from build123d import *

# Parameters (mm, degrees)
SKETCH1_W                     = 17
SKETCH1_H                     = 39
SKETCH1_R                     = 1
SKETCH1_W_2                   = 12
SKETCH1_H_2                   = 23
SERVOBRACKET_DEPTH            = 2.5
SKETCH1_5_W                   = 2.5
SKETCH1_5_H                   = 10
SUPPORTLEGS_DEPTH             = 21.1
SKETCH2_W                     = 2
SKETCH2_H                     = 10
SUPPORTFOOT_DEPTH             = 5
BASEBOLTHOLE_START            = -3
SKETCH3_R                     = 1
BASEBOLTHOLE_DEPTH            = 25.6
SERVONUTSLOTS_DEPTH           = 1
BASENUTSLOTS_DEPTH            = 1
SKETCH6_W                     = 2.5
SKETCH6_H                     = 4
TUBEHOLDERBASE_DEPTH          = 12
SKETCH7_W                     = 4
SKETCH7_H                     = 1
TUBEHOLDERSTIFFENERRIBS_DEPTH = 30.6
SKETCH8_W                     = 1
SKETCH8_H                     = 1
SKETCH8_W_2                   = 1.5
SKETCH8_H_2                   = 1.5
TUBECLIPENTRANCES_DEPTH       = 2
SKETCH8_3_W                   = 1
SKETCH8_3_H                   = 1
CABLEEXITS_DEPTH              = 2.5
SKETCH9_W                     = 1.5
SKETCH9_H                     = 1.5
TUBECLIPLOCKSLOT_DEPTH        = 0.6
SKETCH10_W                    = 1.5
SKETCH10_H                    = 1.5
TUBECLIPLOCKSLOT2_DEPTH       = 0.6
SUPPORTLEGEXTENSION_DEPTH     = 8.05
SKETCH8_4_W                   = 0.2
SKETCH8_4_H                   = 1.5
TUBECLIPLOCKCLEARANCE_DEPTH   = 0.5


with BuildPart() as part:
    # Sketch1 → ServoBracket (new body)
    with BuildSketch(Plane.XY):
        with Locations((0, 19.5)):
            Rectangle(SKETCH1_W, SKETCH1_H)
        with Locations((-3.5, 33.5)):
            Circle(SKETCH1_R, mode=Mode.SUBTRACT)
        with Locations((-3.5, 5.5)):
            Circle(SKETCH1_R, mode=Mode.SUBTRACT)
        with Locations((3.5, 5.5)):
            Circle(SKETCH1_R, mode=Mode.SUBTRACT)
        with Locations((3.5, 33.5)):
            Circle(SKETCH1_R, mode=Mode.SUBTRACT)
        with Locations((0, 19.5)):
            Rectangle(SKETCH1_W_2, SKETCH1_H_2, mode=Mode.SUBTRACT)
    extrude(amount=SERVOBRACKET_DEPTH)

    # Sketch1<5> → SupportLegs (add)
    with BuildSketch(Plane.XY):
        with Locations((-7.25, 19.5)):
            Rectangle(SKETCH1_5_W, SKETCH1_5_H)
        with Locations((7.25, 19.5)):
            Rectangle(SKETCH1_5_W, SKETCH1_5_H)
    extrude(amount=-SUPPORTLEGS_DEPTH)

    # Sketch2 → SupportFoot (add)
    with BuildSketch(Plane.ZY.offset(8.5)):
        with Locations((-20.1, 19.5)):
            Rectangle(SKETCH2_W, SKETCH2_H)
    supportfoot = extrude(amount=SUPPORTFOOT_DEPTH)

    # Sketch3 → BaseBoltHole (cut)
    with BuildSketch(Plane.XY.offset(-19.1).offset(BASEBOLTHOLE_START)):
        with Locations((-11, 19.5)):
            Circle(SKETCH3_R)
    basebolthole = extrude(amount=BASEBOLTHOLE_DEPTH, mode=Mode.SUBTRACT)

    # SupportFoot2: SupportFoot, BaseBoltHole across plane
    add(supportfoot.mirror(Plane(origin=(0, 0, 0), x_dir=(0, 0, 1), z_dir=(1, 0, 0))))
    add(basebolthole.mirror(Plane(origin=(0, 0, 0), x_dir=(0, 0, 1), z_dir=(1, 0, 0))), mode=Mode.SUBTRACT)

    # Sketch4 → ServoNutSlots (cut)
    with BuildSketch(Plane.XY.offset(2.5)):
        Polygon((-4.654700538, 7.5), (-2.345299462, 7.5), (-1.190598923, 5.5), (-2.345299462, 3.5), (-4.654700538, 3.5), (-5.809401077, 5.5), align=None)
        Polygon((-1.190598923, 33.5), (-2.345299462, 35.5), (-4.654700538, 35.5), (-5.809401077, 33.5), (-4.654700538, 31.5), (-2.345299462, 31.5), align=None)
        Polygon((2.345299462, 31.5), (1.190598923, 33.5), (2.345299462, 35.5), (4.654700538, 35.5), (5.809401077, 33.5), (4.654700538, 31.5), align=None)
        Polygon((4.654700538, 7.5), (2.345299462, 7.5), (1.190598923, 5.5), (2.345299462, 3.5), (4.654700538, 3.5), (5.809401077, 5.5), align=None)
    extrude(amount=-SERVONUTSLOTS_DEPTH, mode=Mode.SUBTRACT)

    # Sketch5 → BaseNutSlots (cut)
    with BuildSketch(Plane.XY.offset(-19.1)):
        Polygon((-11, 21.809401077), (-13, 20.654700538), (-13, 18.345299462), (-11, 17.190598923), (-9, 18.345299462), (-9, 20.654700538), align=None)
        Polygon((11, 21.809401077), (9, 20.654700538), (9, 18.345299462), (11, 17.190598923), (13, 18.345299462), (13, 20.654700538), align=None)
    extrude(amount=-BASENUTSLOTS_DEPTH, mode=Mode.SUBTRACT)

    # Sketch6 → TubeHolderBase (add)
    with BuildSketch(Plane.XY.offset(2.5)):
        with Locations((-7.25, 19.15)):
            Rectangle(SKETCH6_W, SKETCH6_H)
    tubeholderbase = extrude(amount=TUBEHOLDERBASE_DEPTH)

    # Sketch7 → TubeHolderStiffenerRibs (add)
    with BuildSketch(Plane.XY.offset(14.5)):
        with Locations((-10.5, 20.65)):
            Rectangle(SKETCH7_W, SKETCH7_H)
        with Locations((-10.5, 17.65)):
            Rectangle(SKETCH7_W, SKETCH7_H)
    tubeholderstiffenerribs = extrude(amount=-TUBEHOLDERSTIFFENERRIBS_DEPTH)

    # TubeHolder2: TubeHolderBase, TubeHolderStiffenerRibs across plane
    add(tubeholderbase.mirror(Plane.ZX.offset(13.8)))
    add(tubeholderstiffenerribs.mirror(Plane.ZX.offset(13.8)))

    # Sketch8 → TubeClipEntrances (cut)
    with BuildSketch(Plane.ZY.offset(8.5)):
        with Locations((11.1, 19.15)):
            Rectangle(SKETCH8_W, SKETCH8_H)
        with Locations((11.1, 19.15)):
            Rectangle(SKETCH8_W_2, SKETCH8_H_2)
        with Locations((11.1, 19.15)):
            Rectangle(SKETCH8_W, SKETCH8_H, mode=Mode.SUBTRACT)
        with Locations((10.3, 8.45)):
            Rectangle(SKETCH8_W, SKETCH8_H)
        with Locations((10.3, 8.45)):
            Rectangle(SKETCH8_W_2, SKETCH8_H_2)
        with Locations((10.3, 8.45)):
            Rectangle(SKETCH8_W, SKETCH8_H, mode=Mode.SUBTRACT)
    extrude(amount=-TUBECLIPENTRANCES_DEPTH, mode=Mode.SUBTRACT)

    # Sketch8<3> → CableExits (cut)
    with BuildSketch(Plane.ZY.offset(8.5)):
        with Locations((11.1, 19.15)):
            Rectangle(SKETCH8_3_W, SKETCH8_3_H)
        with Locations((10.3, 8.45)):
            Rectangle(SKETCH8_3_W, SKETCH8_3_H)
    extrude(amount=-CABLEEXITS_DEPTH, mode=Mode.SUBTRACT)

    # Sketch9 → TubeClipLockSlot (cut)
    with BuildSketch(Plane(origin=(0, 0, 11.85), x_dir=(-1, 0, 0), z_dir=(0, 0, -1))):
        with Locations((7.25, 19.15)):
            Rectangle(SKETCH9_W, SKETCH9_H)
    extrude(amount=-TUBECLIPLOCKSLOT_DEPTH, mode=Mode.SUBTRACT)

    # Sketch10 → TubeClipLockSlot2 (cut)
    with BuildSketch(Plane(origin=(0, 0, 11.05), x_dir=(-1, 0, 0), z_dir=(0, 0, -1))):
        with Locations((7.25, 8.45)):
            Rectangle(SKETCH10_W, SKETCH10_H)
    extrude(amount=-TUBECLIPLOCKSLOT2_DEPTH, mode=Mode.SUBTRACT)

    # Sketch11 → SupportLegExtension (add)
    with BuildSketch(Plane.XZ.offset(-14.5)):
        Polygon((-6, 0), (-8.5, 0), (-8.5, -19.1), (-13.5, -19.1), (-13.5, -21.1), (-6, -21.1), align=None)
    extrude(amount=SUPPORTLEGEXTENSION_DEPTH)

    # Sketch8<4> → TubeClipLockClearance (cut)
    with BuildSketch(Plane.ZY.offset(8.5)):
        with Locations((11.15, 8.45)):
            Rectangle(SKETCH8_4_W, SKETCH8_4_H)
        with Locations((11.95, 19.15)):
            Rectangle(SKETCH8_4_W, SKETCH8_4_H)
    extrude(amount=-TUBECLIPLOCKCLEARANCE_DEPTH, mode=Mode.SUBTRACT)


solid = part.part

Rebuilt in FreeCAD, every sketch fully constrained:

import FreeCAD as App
import Part
import Sketcher
from FreeCAD import Vector
Q = App.Units.Quantity

doc = App.newDocument("Part")
body = doc.addObject("PartDesign::Body", "Body")

sketch1 = body.newObject("Sketcher::SketchObject", "Sketch")
sketch1.AttachmentSupport = (doc.getObject("XY_Plane"), [""])
sketch1.MapMode = "FlatFace"
sketch1.addGeometry(Part.LineSegment(Vector(-8.5, 39, 0), Vector(-8.5, 0, 0)), False)
sketch1.addGeometry(Part.LineSegment(Vector(-8.5, 0, 0), Vector(8.5, 0, 0)), False)
sketch1.addGeometry(Part.LineSegment(Vector(8.5, 0, 0), Vector(8.5, 39, 0)), False)
sketch1.addGeometry(Part.LineSegment(Vector(8.5, 39, 0), Vector(-8.5, 39, 0)), False)
sketch1.addGeometry(Part.Circle(Vector(-3.5, 5.5, 0), Vector(0, 0, 1), 1), False)
sketch1.addGeometry(Part.Circle(Vector(3.5, 5.5, 0), Vector(0, 0, 1), 1), False)
sketch1.addGeometry(Part.Circle(Vector(-3.5, 33.5, 0), Vector(0, 0, 1), 1), False)
sketch1.addGeometry(Part.LineSegment(Vector(6, 8, 0), Vector(-6, 8, 0)), False)
sketch1.addGeometry(Part.LineSegment(Vector(-6, 8, 0), Vector(-6, 31, 0)), False)
sketch1.addGeometry(Part.LineSegment(Vector(-6, 31, 0), Vector(6, 31, 0)), False)
sketch1.addGeometry(Part.LineSegment(Vector(6, 31, 0), Vector(6, 8, 0)), False)
sketch1.addGeometry(Part.Circle(Vector(3.5, 33.5, 0), Vector(0, 0, 1), 1), False)
sketch1.addConstraint(Sketcher.Constraint("Coincident", 0, 2, 1, 1))
sketch1.addConstraint(Sketcher.Constraint("Coincident", 1, 2, 2, 1))
sketch1.addConstraint(Sketcher.Constraint("Coincident", 2, 2, 3, 1))
sketch1.addConstraint(Sketcher.Constraint("Coincident", 3, 2, 0, 1))
sketch1.addConstraint(Sketcher.Constraint("Coincident", 7, 2, 8, 1))
sketch1.addConstraint(Sketcher.Constraint("Coincident", 8, 2, 9, 1))
sketch1.addConstraint(Sketcher.Constraint("Coincident", 9, 2, 10, 1))
sketch1.addConstraint(Sketcher.Constraint("Coincident", 10, 2, 7, 1))
sketch1.addConstraint(Sketcher.Constraint("Vertical", 0))
sketch1.addConstraint(Sketcher.Constraint("Horizontal", 1))
sketch1.addConstraint(Sketcher.Constraint("Vertical", 2))
sketch1.addConstraint(Sketcher.Constraint("Horizontal", 3))
sketch1.addConstraint(Sketcher.Constraint("Horizontal", 7))
sketch1.addConstraint(Sketcher.Constraint("Vertical", 8))
sketch1.addConstraint(Sketcher.Constraint("Horizontal", 9))
sketch1.addConstraint(Sketcher.Constraint("Vertical", 10))
sketch1.addConstraint(Sketcher.Constraint("Equal", 4, 5))
sketch1.addConstraint(Sketcher.Constraint("Equal", 5, 6))
sketch1.addConstraint(Sketcher.Constraint("Equal", 6, 11))
sketch1.addConstraint(Sketcher.Constraint("Symmetric", 0, 2, 1, 2, -1, 1))
sketch1.addConstraint(Sketcher.Constraint("Symmetric", 4, 3, 5, 3, -2))
sketch1.addConstraint(Sketcher.Constraint("Symmetric", 6, 3, 11, 3, -2))
sketch1.addConstraint(Sketcher.Constraint("Vertical", 4, 3, 6, 3))
sketch1.addConstraint(Sketcher.Constraint("Diameter", 4, Q("2 mm")))
sketch1.addConstraint(Sketcher.Constraint("DistanceX", 1, 1, 1, 2, Q("17 mm")))
sketch1.addConstraint(Sketcher.Constraint("DistanceX", 7, 2, 7, 1, Q("12 mm")))
sketch1.addConstraint(Sketcher.Constraint("DistanceY", 0, 2, 0, 1, Q("39 mm")))
sketch1.addConstraint(Sketcher.Constraint("DistanceY", 8, 1, 8, 2, Q("23 mm")))
sketch1.addConstraint(Sketcher.Constraint("DistanceX", 7, 2, -1, 1, Q("6 mm")))
sketch1.addConstraint(Sketcher.Constraint("DistanceY", -1, 1, 7, 2, Q("8 mm")))
sketch1.addConstraint(Sketcher.Constraint("DistanceX", 4, 3, 5, 3, Q("7 mm")))
sketch1.addConstraint(Sketcher.Constraint("DistanceY", 4, 3, 6, 3, Q("28 mm")))
sketch1.addConstraint(Sketcher.Constraint("DistanceY", -1, 1, 4, 3, Q("5.5 mm")))
pad1 = body.newObject("PartDesign::Pad", "Pad")
pad1.Profile = sketch1
pad1.Length = 2.5

sketch2 = body.newObject("Sketcher::SketchObject", "Sketch001")
sketch2.AttachmentSupport = (doc.getObject("XY_Plane"), [""])
sketch2.MapMode = "FlatFace"
sketch2.addGeometry(Part.LineSegment(Vector(-8.5, 24.5, 0), Vector(-8.5, 14.5, 0)), False)
sketch2.addGeometry(Part.LineSegment(Vector(-8.5, 14.5, 0), Vector(-6, 14.5, 0)), False)
sketch2.addGeometry(Part.LineSegment(Vector(-6, 14.5, 0), Vector(-6, 24.5, 0)), False)
sketch2.addGeometry(Part.LineSegment(Vector(-6, 24.5, 0), Vector(-8.5, 24.5, 0)), False)
sketch2.addGeometry(Part.LineSegment(Vector(6, 24.5, 0), Vector(6, 14.5, 0)), False)
sketch2.addGeometry(Part.LineSegment(Vector(6, 14.5, 0), Vector(8.5, 14.5, 0)), False)
sketch2.addGeometry(Part.LineSegment(Vector(8.5, 14.5, 0), Vector(8.5, 24.5, 0)), False)
sketch2.addGeometry(Part.LineSegment(Vector(8.5, 24.5, 0), Vector(6, 24.5, 0)), False)
sketch2.addConstraint(Sketcher.Constraint("Coincident", 0, 2, 1, 1))
sketch2.addConstraint(Sketcher.Constraint("Coincident", 1, 2, 2, 1))
sketch2.addConstraint(Sketcher.Constraint("Coincident", 2, 2, 3, 1))
sketch2.addConstraint(Sketcher.Constraint("Coincident", 3, 2, 0, 1))
sketch2.addConstraint(Sketcher.Constraint("Coincident", 4, 2, 5, 1))
sketch2.addConstraint(Sketcher.Constraint("Coincident", 5, 2, 6, 1))
sketch2.addConstraint(Sketcher.Constraint("Coincident", 6, 2, 7, 1))
sketch2.addConstraint(Sketcher.Constraint("Coincident", 7, 2, 4, 1))
sketch2.addConstraint(Sketcher.Constraint("Vertical", 0))
sketch2.addConstraint(Sketcher.Constraint("Horizontal", 1))
sketch2.addConstraint(Sketcher.Constraint("Vertical", 2))
sketch2.addConstraint(Sketcher.Constraint("Horizontal", 3))
sketch2.addConstraint(Sketcher.Constraint("Vertical", 4))
sketch2.addConstraint(Sketcher.Constraint("Horizontal", 5))
sketch2.addConstraint(Sketcher.Constraint("Vertical", 6))
sketch2.addConstraint(Sketcher.Constraint("Horizontal", 7))
sketch2.addConstraint(Sketcher.Constraint("Symmetric", 1, 2, 4, 2, -2))
sketch2.addConstraint(Sketcher.Constraint("Symmetric", 3, 2, 6, 2, -2))
sketch2.addConstraint(Sketcher.Constraint("DistanceY", 0, 2, 0, 1, Q("10 mm")))
sketch2.addConstraint(Sketcher.Constraint("DistanceX", 1, 1, 1, 2, Q("2.5 mm")))
sketch2.addConstraint(Sketcher.Constraint("DistanceX", 1, 2, -1, 1, Q("6 mm")))
sketch2.addConstraint(Sketcher.Constraint("DistanceY", -1, 1, 0, 2, Q("14.5 mm")))
pad2 = body.newObject("PartDesign::Pad", "Pad001")
pad2.Profile = sketch2
pad2.Length = 21.1
pad2.Reversed = True

sketch3 = body.newObject("Sketcher::SketchObject", "Sketch002")
sketch3.AttachmentSupport = (doc.getObject("YZ_Plane"), [""])
sketch3.MapMode = "FlatFace"
sketch3.AttachmentOffset = App.Placement(Vector(0, 0, -8.5), App.Rotation())
sketch3.addGeometry(Part.LineSegment(Vector(24.5, -21.1, 0), Vector(14.5, -21.1, 0)), False)
sketch3.addGeometry(Part.LineSegment(Vector(14.5, -21.1, 0), Vector(14.5, -19.1, 0)), False)
sketch3.addGeometry(Part.LineSegment(Vector(14.5, -19.1, 0), Vector(24.5, -19.1, 0)), False)
sketch3.addGeometry(Part.LineSegment(Vector(24.5, -19.1, 0), Vector(24.5, -21.1, 0)), False)
sketch3.addConstraint(Sketcher.Constraint("Coincident", 0, 2, 1, 1))
sketch3.addConstraint(Sketcher.Constraint("Coincident", 1, 2, 2, 1))
sketch3.addConstraint(Sketcher.Constraint("Coincident", 2, 2, 3, 1))
sketch3.addConstraint(Sketcher.Constraint("Coincident", 3, 2, 0, 1))
sketch3.addConstraint(Sketcher.Constraint("Horizontal", 0))
sketch3.addConstraint(Sketcher.Constraint("Vertical", 1))
sketch3.addConstraint(Sketcher.Constraint("Horizontal", 2))
sketch3.addConstraint(Sketcher.Constraint("Vertical", 3))
sketch3.addConstraint(Sketcher.Constraint("DistanceX", 0, 2, 0, 1, Q("10 mm")))
sketch3.addConstraint(Sketcher.Constraint("DistanceY", 1, 1, 1, 2, Q("2 mm")))
sketch3.addConstraint(Sketcher.Constraint("DistanceX", -1, 1, 0, 2, Q("14.5 mm")))
sketch3.addConstraint(Sketcher.Constraint("DistanceY", 0, 2, -1, 1, Q("21.1 mm")))
pad3 = body.newObject("PartDesign::Pad", "Pad002")
pad3.Profile = sketch3
pad3.Length = 5
pad3.Reversed = True

sketch4 = body.newObject("Sketcher::SketchObject", "Sketch003")
sketch4.AttachmentSupport = (doc.getObject("XY_Plane"), [""])
sketch4.MapMode = "FlatFace"
sketch4.AttachmentOffset = App.Placement(Vector(0, 0, -22.1), App.Rotation())
sketch4.addGeometry(Part.Circle(Vector(-11, 19.5, 0), Vector(0, 0, 1), 1), False)
sketch4.addConstraint(Sketcher.Constraint("Diameter", 0, Q("2 mm")))
sketch4.addConstraint(Sketcher.Constraint("DistanceX", 0, 3, -1, 1, Q("11 mm")))
sketch4.addConstraint(Sketcher.Constraint("DistanceY", -1, 1, 0, 3, Q("19.5 mm")))
pocket1 = body.newObject("PartDesign::Pocket", "Pocket")
pocket1.Profile = sketch4
pocket1.Length = 25.6
pocket1.Reversed = True
doc.recompute()

mirrored = body.newObject("PartDesign::Mirrored", "Mirrored")
mirrored.Originals = [pad3, pocket1]
mirrored.MirrorPlane = (doc.getObject("YZ_Plane"), [""])
body.Tip = mirrored

sketch5 = body.newObject("Sketcher::SketchObject", "Sketch004")
sketch5.AttachmentSupport = (doc.getObject("XY_Plane"), [""])
sketch5.MapMode = "FlatFace"
sketch5.AttachmentOffset = App.Placement(Vector(0, 0, 2.5), App.Rotation())
sketch5.addGeometry(Part.LineSegment(Vector(-2.3, 7.5, 0), Vector(-4.7, 7.5, 0)), False)
sketch5.addGeometry(Part.LineSegment(Vector(-4.7, 7.5, 0), Vector(-5.8, 5.5, 0)), False)
sketch5.addGeometry(Part.LineSegment(Vector(-5.8, 5.5, 0), Vector(-4.7, 3.5, 0)), False)
sketch5.addGeometry(Part.LineSegment(Vector(-4.7, 3.5, 0), Vector(-2.3, 3.5, 0)), False)
sketch5.addGeometry(Part.LineSegment(Vector(-2.3, 3.5, 0), Vector(-1.2, 5.5, 0)), False)
sketch5.addGeometry(Part.LineSegment(Vector(-1.2, 5.5, 0), Vector(-2.3, 7.5, 0)), False)
sketch5.addGeometry(Part.LineSegment(Vector(-1.2, 33.5, 0), Vector(-2.3, 35.5, 0)), False)
sketch5.addGeometry(Part.LineSegment(Vector(-2.3, 35.5, 0), Vector(-4.7, 35.5, 0)), False)
sketch5.addGeometry(Part.LineSegment(Vector(-4.7, 35.5, 0), Vector(-5.8, 33.5, 0)), False)
sketch5.addGeometry(Part.LineSegment(Vector(-5.8, 33.5, 0), Vector(-4.7, 31.5, 0)), False)
sketch5.addGeometry(Part.LineSegment(Vector(-4.7, 31.5, 0), Vector(-2.3, 31.5, 0)), False)
sketch5.addGeometry(Part.LineSegment(Vector(-2.3, 31.5, 0), Vector(-1.2, 33.5, 0)), False)
sketch5.addGeometry(Part.LineSegment(Vector(1.2, 33.5, 0), Vector(2.3, 31.5, 0)), False)
sketch5.addGeometry(Part.LineSegment(Vector(2.3, 31.5, 0), Vector(4.7, 31.5, 0)), False)
sketch5.addGeometry(Part.LineSegment(Vector(4.7, 31.5, 0), Vector(5.8, 33.5, 0)), False)
sketch5.addGeometry(Part.LineSegment(Vector(5.8, 33.5, 0), Vector(4.7, 35.5, 0)), False)
sketch5.addGeometry(Part.LineSegment(Vector(4.7, 35.5, 0), Vector(2.3, 35.5, 0)), False)
sketch5.addGeometry(Part.LineSegment(Vector(2.3, 35.5, 0), Vector(1.2, 33.5, 0)), False)
sketch5.addGeometry(Part.LineSegment(Vector(4.7, 7.5, 0), Vector(2.3, 7.5, 0)), False)
sketch5.addGeometry(Part.LineSegment(Vector(2.3, 7.5, 0), Vector(1.2, 5.5, 0)), False)
sketch5.addGeometry(Part.LineSegment(Vector(1.2, 5.5, 0), Vector(2.3, 3.5, 0)), False)
sketch5.addGeometry(Part.LineSegment(Vector(2.3, 3.5, 0), Vector(4.7, 3.5, 0)), False)
sketch5.addGeometry(Part.LineSegment(Vector(4.7, 3.5, 0), Vector(5.8, 5.5, 0)), False)
sketch5.addGeometry(Part.LineSegment(Vector(5.8, 5.5, 0), Vector(4.7, 7.5, 0)), False)
sketch5.addConstraint(Sketcher.Constraint("Coincident", 0, 2, 1, 1))
sketch5.addConstraint(Sketcher.Constraint("Coincident", 1, 2, 2, 1))
sketch5.addConstraint(Sketcher.Constraint("Coincident", 2, 2, 3, 1))
sketch5.addConstraint(Sketcher.Constraint("Coincident", 3, 2, 4, 1))
sketch5.addConstraint(Sketcher.Constraint("Coincident", 4, 2, 5, 1))
sketch5.addConstraint(Sketcher.Constraint("Coincident", 5, 2, 0, 1))
sketch5.addConstraint(Sketcher.Constraint("Coincident", 6, 2, 7, 1))
sketch5.addConstraint(Sketcher.Constraint("Coincident", 7, 2, 8, 1))
sketch5.addConstraint(Sketcher.Constraint("Coincident", 8, 2, 9, 1))
sketch5.addConstraint(Sketcher.Constraint("Coincident", 9, 2, 10, 1))
sketch5.addConstraint(Sketcher.Constraint("Coincident", 10, 2, 11, 1))
sketch5.addConstraint(Sketcher.Constraint("Coincident", 11, 2, 6, 1))
sketch5.addConstraint(Sketcher.Constraint("Coincident", 12, 2, 13, 1))
sketch5.addConstraint(Sketcher.Constraint("Coincident", 13, 2, 14, 1))
sketch5.addConstraint(Sketcher.Constraint("Coincident", 14, 2, 15, 1))
sketch5.addConstraint(Sketcher.Constraint("Coincident", 15, 2, 16, 1))
sketch5.addConstraint(Sketcher.Constraint("Coincident", 16, 2, 17, 1))
sketch5.addConstraint(Sketcher.Constraint("Coincident", 17, 2, 12, 1))
sketch5.addConstraint(Sketcher.Constraint("Coincident", 18, 2, 19, 1))
sketch5.addConstraint(Sketcher.Constraint("Coincident", 19, 2, 20, 1))
sketch5.addConstraint(Sketcher.Constraint("Coincident", 20, 2, 21, 1))
sketch5.addConstraint(Sketcher.Constraint("Coincident", 21, 2, 22, 1))
sketch5.addConstraint(Sketcher.Constraint("Coincident", 22, 2, 23, 1))
sketch5.addConstraint(Sketcher.Constraint("Coincident", 23, 2, 18, 1))
sketch5.addConstraint(Sketcher.Constraint("Horizontal", 0))
sketch5.addConstraint(Sketcher.Constraint("Horizontal", 3))
sketch5.addConstraint(Sketcher.Constraint("Horizontal", 7))
sketch5.addConstraint(Sketcher.Constraint("Horizontal", 10))
sketch5.addConstraint(Sketcher.Constraint("Horizontal", 13))
sketch5.addConstraint(Sketcher.Constraint("Horizontal", 16))
sketch5.addConstraint(Sketcher.Constraint("Horizontal", 18))
sketch5.addConstraint(Sketcher.Constraint("Horizontal", 21))
sketch5.addConstraint(Sketcher.Constraint("Symmetric", 10, 2, 12, 2, -2))
sketch5.addConstraint(Sketcher.Constraint("Symmetric", 8, 2, 14, 2, -2))
sketch5.addConstraint(Sketcher.Constraint("Symmetric", 7, 2, 15, 2, -2))
sketch5.addConstraint(Sketcher.Constraint("Symmetric", 11, 2, 17, 2, -2))
sketch5.addConstraint(Sketcher.Constraint("Symmetric", 5, 2, 18, 2, -2))
sketch5.addConstraint(Sketcher.Constraint("Symmetric", 4, 2, 19, 2, -2))
sketch5.addConstraint(Sketcher.Constraint("Symmetric", 3, 2, 20, 2, -2))
sketch5.addConstraint(Sketcher.Constraint("Symmetric", 1, 2, 22, 2, -2))
sketch5.addConstraint(Sketcher.Constraint("Parallel", 1, 4))
sketch5.addConstraint(Sketcher.Constraint("Parallel", 2, 5))
sketch5.addConstraint(Sketcher.Constraint("Parallel", 5, 6))
sketch5.addConstraint(Sketcher.Constraint("Parallel", 4, 8))
sketch5.addConstraint(Sketcher.Constraint("Parallel", 6, 9))
sketch5.addConstraint(Sketcher.Constraint("Parallel", 8, 11))
sketch5.addConstraint(Sketcher.Constraint("Parallel", 9, 12))
sketch5.addConstraint(Sketcher.Constraint("Parallel", 11, 14))
sketch5.addConstraint(Sketcher.Constraint("Parallel", 14, 17))
sketch5.addConstraint(Sketcher.Constraint("Parallel", 19, 22))
sketch5.addConstraint(Sketcher.Constraint("Parallel", 20, 23))
sketch5.addConstraint(Sketcher.Constraint("Horizontal", 1, 2, 4, 2))
sketch5.addConstraint(Sketcher.Constraint("Horizontal", 8, 2, 11, 2))
sketch5.addConstraint(Sketcher.Constraint("Vertical", 0, 2, 2, 2))
sketch5.addConstraint(Sketcher.Constraint("Vertical", 5, 2, 6, 2))
sketch5.addConstraint(Sketcher.Constraint("Vertical", 2, 2, 7, 2))
sketch5.addConstraint(Sketcher.Constraint("Vertical", 1, 2, 8, 2))
sketch5.addConstraint(Sketcher.Constraint("Vertical", 7, 2, 9, 2))
sketch5.addConstraint(Sketcher.Constraint("Angle", 1, Q("-120 deg")))
sketch5.addConstraint(Sketcher.Constraint("DistanceY", 1, 2, 0, 2, Q("2 mm")))
sketch5.addConstraint(Sketcher.Constraint("DistanceY", 5, 2, 6, 2, Q("28 mm")))
sketch5.addConstraint(Sketcher.Constraint("DistanceX", 9, 2, 12, 2, Q("7 mm")))
sketch5.addConstraint(Sketcher.Constraint("DistanceY", -1, 1, 0, 2, Q("7.5 mm")))
sketch5.addConstraint(Sketcher.Constraint("DistanceX", 0, 2, 0, 1, Q("2.309401 mm")))
pocket2 = body.newObject("PartDesign::Pocket", "Pocket001")
pocket2.Profile = sketch5
pocket2.Length = 1

sketch6 = body.newObject("Sketcher::SketchObject", "Sketch005")
sketch6.AttachmentSupport = (doc.getObject("XY_Plane"), [""])
sketch6.MapMode = "FlatFace"
sketch6.AttachmentOffset = App.Placement(Vector(0, 0, -19.1), App.Rotation())
sketch6.addGeometry(Part.LineSegment(Vector(-11, 21.8, 0), Vector(-13, 20.7, 0)), False)
sketch6.addGeometry(Part.LineSegment(Vector(-13, 20.7, 0), Vector(-13, 18.3, 0)), False)
sketch6.addGeometry(Part.LineSegment(Vector(-13, 18.3, 0), Vector(-11, 17.2, 0)), False)
sketch6.addGeometry(Part.LineSegment(Vector(-11, 17.2, 0), Vector(-9, 18.3, 0)), False)
sketch6.addGeometry(Part.LineSegment(Vector(-9, 18.3, 0), Vector(-9, 20.7, 0)), False)
sketch6.addGeometry(Part.LineSegment(Vector(-9, 20.7, 0), Vector(-11, 21.8, 0)), False)
sketch6.addGeometry(Part.LineSegment(Vector(11, 21.8, 0), Vector(9, 20.7, 0)), False)
sketch6.addGeometry(Part.LineSegment(Vector(9, 20.7, 0), Vector(9, 18.3, 0)), False)
sketch6.addGeometry(Part.LineSegment(Vector(9, 18.3, 0), Vector(11, 17.2, 0)), False)
sketch6.addGeometry(Part.LineSegment(Vector(11, 17.2, 0), Vector(13, 18.3, 0)), False)
sketch6.addGeometry(Part.LineSegment(Vector(13, 18.3, 0), Vector(13, 20.7, 0)), False)
sketch6.addGeometry(Part.LineSegment(Vector(13, 20.7, 0), Vector(11, 21.8, 0)), False)
sketch6.addConstraint(Sketcher.Constraint("Coincident", 0, 2, 1, 1))
sketch6.addConstraint(Sketcher.Constraint("Coincident", 1, 2, 2, 1))
sketch6.addConstraint(Sketcher.Constraint("Coincident", 2, 2, 3, 1))
sketch6.addConstraint(Sketcher.Constraint("Coincident", 3, 2, 4, 1))
sketch6.addConstraint(Sketcher.Constraint("Coincident", 4, 2, 5, 1))
sketch6.addConstraint(Sketcher.Constraint("Coincident", 5, 2, 0, 1))
sketch6.addConstraint(Sketcher.Constraint("Coincident", 6, 2, 7, 1))
sketch6.addConstraint(Sketcher.Constraint("Coincident", 7, 2, 8, 1))
sketch6.addConstraint(Sketcher.Constraint("Coincident", 8, 2, 9, 1))
sketch6.addConstraint(Sketcher.Constraint("Coincident", 9, 2, 10, 1))
sketch6.addConstraint(Sketcher.Constraint("Coincident", 10, 2, 11, 1))
sketch6.addConstraint(Sketcher.Constraint("Coincident", 11, 2, 6, 1))
sketch6.addConstraint(Sketcher.Constraint("Vertical", 1))
sketch6.addConstraint(Sketcher.Constraint("Vertical", 4))
sketch6.addConstraint(Sketcher.Constraint("Vertical", 7))
sketch6.addConstraint(Sketcher.Constraint("Vertical", 10))
sketch6.addConstraint(Sketcher.Constraint("Symmetric", 4, 2, 6, 2, -2))
sketch6.addConstraint(Sketcher.Constraint("Symmetric", 2, 2, 8, 2, -2))
sketch6.addConstraint(Sketcher.Constraint("Symmetric", 1, 2, 9, 2, -2))
sketch6.addConstraint(Sketcher.Constraint("Symmetric", 5, 2, 11, 2, -2))
sketch6.addConstraint(Sketcher.Constraint("Parallel", 0, 3))
sketch6.addConstraint(Sketcher.Constraint("Parallel", 2, 5))
sketch6.addConstraint(Sketcher.Constraint("Parallel", 3, 6))
sketch6.addConstraint(Sketcher.Constraint("Parallel", 5, 8))
sketch6.addConstraint(Sketcher.Constraint("Parallel", 8, 11))
sketch6.addConstraint(Sketcher.Constraint("Horizontal", 1, 2, 3, 2))
sketch6.addConstraint(Sketcher.Constraint("Horizontal", 0, 2, 4, 2))
sketch6.addConstraint(Sketcher.Constraint("Angle", 0, Q("-150 deg")))
sketch6.addConstraint(Sketcher.Constraint("DistanceX", 0, 2, -1, 1, Q("13 mm")))
sketch6.addConstraint(Sketcher.Constraint("DistanceX", 2, 2, -1, 1, Q("11 mm")))
sketch6.addConstraint(Sketcher.Constraint("DistanceY", 1, 2, 1, 1, Q("2.309401 mm")))
sketch6.addConstraint(Sketcher.Constraint("DistanceY", -1, 1, 0, 2, Q("20.654701 mm")))
pocket3 = body.newObject("PartDesign::Pocket", "Pocket002")
pocket3.Profile = sketch6
pocket3.Length = 1

sketch7 = body.newObject("Sketcher::SketchObject", "Sketch006")
sketch7.AttachmentSupport = (doc.getObject("XY_Plane"), [""])
sketch7.MapMode = "FlatFace"
sketch7.AttachmentOffset = App.Placement(Vector(0, 0, 2.5), App.Rotation())
sketch7.addGeometry(Part.LineSegment(Vector(-8.5, 21.1, 0), Vector(-8.5, 17.1, 0)), False)
sketch7.addGeometry(Part.LineSegment(Vector(-8.5, 17.1, 0), Vector(-6, 17.1, 0)), False)
sketch7.addGeometry(Part.LineSegment(Vector(-6, 17.1, 0), Vector(-6, 21.1, 0)), False)
sketch7.addGeometry(Part.LineSegment(Vector(-6, 21.1, 0), Vector(-8.5, 21.1, 0)), False)
sketch7.addConstraint(Sketcher.Constraint("Coincident", 0, 2, 1, 1))
sketch7.addConstraint(Sketcher.Constraint("Coincident", 1, 2, 2, 1))
sketch7.addConstraint(Sketcher.Constraint("Coincident", 2, 2, 3, 1))
sketch7.addConstraint(Sketcher.Constraint("Coincident", 3, 2, 0, 1))
sketch7.addConstraint(Sketcher.Constraint("Vertical", 0))
sketch7.addConstraint(Sketcher.Constraint("Horizontal", 1))
sketch7.addConstraint(Sketcher.Constraint("Vertical", 2))
sketch7.addConstraint(Sketcher.Constraint("Horizontal", 3))
sketch7.addConstraint(Sketcher.Constraint("DistanceY", 0, 2, 0, 1, Q("4 mm")))
sketch7.addConstraint(Sketcher.Constraint("DistanceX", 1, 1, 1, 2, Q("2.5 mm")))
sketch7.addConstraint(Sketcher.Constraint("DistanceX", 1, 2, -1, 1, Q("6 mm")))
sketch7.addConstraint(Sketcher.Constraint("DistanceY", -1, 1, 0, 2, Q("17.15 mm")))
pad4 = body.newObject("PartDesign::Pad", "Pad003")
pad4.Profile = sketch7
pad4.Length = 12

sketch8 = body.newObject("Sketcher::SketchObject", "Sketch007")
sketch8.AttachmentSupport = (doc.getObject("XY_Plane"), [""])
sketch8.MapMode = "FlatFace"
sketch8.AttachmentOffset = App.Placement(Vector(0, 0, 14.5), App.Rotation())
sketch8.addGeometry(Part.LineSegment(Vector(-12.5, 21.1, 0), Vector(-12.5, 20.1, 0)), False)
sketch8.addGeometry(Part.LineSegment(Vector(-12.5, 20.1, 0), Vector(-8.5, 20.1, 0)), False)
sketch8.addGeometry(Part.LineSegment(Vector(-8.5, 20.1, 0), Vector(-8.5, 21.1, 0)), False)
sketch8.addGeometry(Part.LineSegment(Vector(-8.5, 21.1, 0), Vector(-12.5, 21.1, 0)), False)
sketch8.addGeometry(Part.LineSegment(Vector(-12.5, 18.1, 0), Vector(-12.5, 17.1, 0)), False)
sketch8.addGeometry(Part.LineSegment(Vector(-12.5, 17.1, 0), Vector(-8.5, 17.1, 0)), False)
sketch8.addGeometry(Part.LineSegment(Vector(-8.5, 17.1, 0), Vector(-8.5, 18.1, 0)), False)
sketch8.addGeometry(Part.LineSegment(Vector(-8.5, 18.1, 0), Vector(-12.5, 18.1, 0)), False)
sketch8.addConstraint(Sketcher.Constraint("Coincident", 0, 2, 1, 1))
sketch8.addConstraint(Sketcher.Constraint("Coincident", 1, 2, 2, 1))
sketch8.addConstraint(Sketcher.Constraint("Coincident", 2, 2, 3, 1))
sketch8.addConstraint(Sketcher.Constraint("Coincident", 3, 2, 0, 1))
sketch8.addConstraint(Sketcher.Constraint("Coincident", 4, 2, 5, 1))
sketch8.addConstraint(Sketcher.Constraint("Coincident", 5, 2, 6, 1))
sketch8.addConstraint(Sketcher.Constraint("Coincident", 6, 2, 7, 1))
sketch8.addConstraint(Sketcher.Constraint("Coincident", 7, 2, 4, 1))
sketch8.addConstraint(Sketcher.Constraint("Vertical", 0))
sketch8.addConstraint(Sketcher.Constraint("Horizontal", 1))
sketch8.addConstraint(Sketcher.Constraint("Vertical", 2))
sketch8.addConstraint(Sketcher.Constraint("Horizontal", 3))
sketch8.addConstraint(Sketcher.Constraint("Vertical", 4))
sketch8.addConstraint(Sketcher.Constraint("Horizontal", 5))
sketch8.addConstraint(Sketcher.Constraint("Vertical", 6))
sketch8.addConstraint(Sketcher.Constraint("Horizontal", 7))
sketch8.addConstraint(Sketcher.Constraint("Vertical", 3, 2, 4, 2))
sketch8.addConstraint(Sketcher.Constraint("Vertical", 2, 2, 5, 2))
sketch8.addConstraint(Sketcher.Constraint("Equal", 2, 4))
sketch8.addConstraint(Sketcher.Constraint("DistanceX", 1, 1, 1, 2, Q("4 mm")))
sketch8.addConstraint(Sketcher.Constraint("DistanceY", 0, 2, 0, 1, Q("1 mm")))
sketch8.addConstraint(Sketcher.Constraint("DistanceY", 4, 2, 0, 2, Q("3 mm")))
sketch8.addConstraint(Sketcher.Constraint("DistanceX", 0, 2, -1, 1, Q("12.5 mm")))
sketch8.addConstraint(Sketcher.Constraint("DistanceY", -1, 1, 0, 2, Q("20.15 mm")))
pad5 = body.newObject("PartDesign::Pad", "Pad004")
pad5.Profile = sketch8
pad5.Length = 30.6
pad5.Reversed = True
doc.recompute()

datumplane = body.newObject("PartDesign::Plane", "DatumPlane")
datumplane.AttachmentSupport = (doc.getObject("XZ_Plane"), [""])
datumplane.MapMode = "FlatFace"
datumplane.AttachmentOffset = App.Placement(Vector(0, 0, -13.8), App.Rotation())
mirrored2 = body.newObject("PartDesign::Mirrored", "Mirrored001")
mirrored2.Originals = [pad4, pad5]
mirrored2.MirrorPlane = (datumplane, [""])
body.Tip = mirrored2

sketch9 = body.newObject("Sketcher::SketchObject", "Sketch008")
sketch9.AttachmentSupport = (doc.getObject("YZ_Plane"), [""])
sketch9.MapMode = "FlatFace"
sketch9.AttachmentOffset = App.Placement(Vector(0, 0, -8.5), App.Rotation())
sketch9.addGeometry(Part.LineSegment(Vector(19.9, 10.3, 0), Vector(18.4, 10.3, 0)), False)
sketch9.addGeometry(Part.LineSegment(Vector(18.4, 10.3, 0), Vector(18.4, 11.8, 0)), False)
sketch9.addGeometry(Part.LineSegment(Vector(18.4, 11.8, 0), Vector(19.9, 11.8, 0)), False)
sketch9.addGeometry(Part.LineSegment(Vector(19.9, 11.8, 0), Vector(19.9, 10.3, 0)), False)
sketch9.addGeometry(Part.LineSegment(Vector(18.6, 11.6, 0), Vector(18.6, 10.6, 0)), False)
sketch9.addGeometry(Part.LineSegment(Vector(18.6, 10.6, 0), Vector(19.6, 10.6, 0)), False)
sketch9.addGeometry(Part.LineSegment(Vector(19.6, 10.6, 0), Vector(19.6, 11.6, 0)), False)
sketch9.addGeometry(Part.LineSegment(Vector(19.6, 11.6, 0), Vector(18.6, 11.6, 0)), False)
sketch9.addGeometry(Part.LineSegment(Vector(9.2, 9.6, 0), Vector(7.7, 9.6, 0)), False)
sketch9.addGeometry(Part.LineSegment(Vector(7.7, 9.6, 0), Vector(7.7, 11.1, 0)), False)
sketch9.addGeometry(Part.LineSegment(Vector(7.7, 11.1, 0), Vector(9.2, 11.1, 0)), False)
sketch9.addGeometry(Part.LineSegment(Vector(9.2, 11.1, 0), Vector(9.2, 9.6, 0)), False)
sketch9.addGeometry(Part.LineSegment(Vector(8, 10.8, 0), Vector(8, 9.8, 0)), False)
sketch9.addGeometry(Part.LineSegment(Vector(8, 9.8, 0), Vector(8.9, 9.8, 0)), False)
sketch9.addGeometry(Part.LineSegment(Vector(8.9, 9.8, 0), Vector(8.9, 10.8, 0)), False)
sketch9.addGeometry(Part.LineSegment(Vector(8.9, 10.8, 0), Vector(8, 10.8, 0)), False)
sketch9.addConstraint(Sketcher.Constraint("Coincident", 0, 2, 1, 1))
sketch9.addConstraint(Sketcher.Constraint("Coincident", 1, 2, 2, 1))
sketch9.addConstraint(Sketcher.Constraint("Coincident", 2, 2, 3, 1))
sketch9.addConstraint(Sketcher.Constraint("Coincident", 3, 2, 0, 1))
sketch9.addConstraint(Sketcher.Constraint("Coincident", 4, 2, 5, 1))
sketch9.addConstraint(Sketcher.Constraint("Coincident", 5, 2, 6, 1))
sketch9.addConstraint(Sketcher.Constraint("Coincident", 6, 2, 7, 1))
sketch9.addConstraint(Sketcher.Constraint("Coincident", 7, 2, 4, 1))
sketch9.addConstraint(Sketcher.Constraint("Coincident", 8, 2, 9, 1))
sketch9.addConstraint(Sketcher.Constraint("Coincident", 9, 2, 10, 1))
sketch9.addConstraint(Sketcher.Constraint("Coincident", 10, 2, 11, 1))
sketch9.addConstraint(Sketcher.Constraint("Coincident", 11, 2, 8, 1))
sketch9.addConstraint(Sketcher.Constraint("Coincident", 12, 2, 13, 1))
sketch9.addConstraint(Sketcher.Constraint("Coincident", 13, 2, 14, 1))
sketch9.addConstraint(Sketcher.Constraint("Coincident", 14, 2, 15, 1))
sketch9.addConstraint(Sketcher.Constraint("Coincident", 15, 2, 12, 1))
sketch9.addConstraint(Sketcher.Constraint("Horizontal", 0))
sketch9.addConstraint(Sketcher.Constraint("Vertical", 1))
sketch9.addConstraint(Sketcher.Constraint("Horizontal", 2))
sketch9.addConstraint(Sketcher.Constraint("Vertical", 3))
sketch9.addConstraint(Sketcher.Constraint("Vertical", 4))
sketch9.addConstraint(Sketcher.Constraint("Horizontal", 5))
sketch9.addConstraint(Sketcher.Constraint("Vertical", 6))
sketch9.addConstraint(Sketcher.Constraint("Horizontal", 7))
sketch9.addConstraint(Sketcher.Constraint("Horizontal", 8))
sketch9.addConstraint(Sketcher.Constraint("Vertical", 9))
sketch9.addConstraint(Sketcher.Constraint("Horizontal", 10))
sketch9.addConstraint(Sketcher.Constraint("Vertical", 11))
sketch9.addConstraint(Sketcher.Constraint("Vertical", 12))
sketch9.addConstraint(Sketcher.Constraint("Horizontal", 13))
sketch9.addConstraint(Sketcher.Constraint("Vertical", 14))
sketch9.addConstraint(Sketcher.Constraint("Horizontal", 15))
sketch9.addConstraint(Sketcher.Constraint("Equal", 2, 8))
sketch9.addConstraint(Sketcher.Constraint("Equal", 7, 13))
sketch9.addConstraint(Sketcher.Constraint("Equal", 10, 1))
sketch9.addConstraint(Sketcher.Constraint("Equal", 15, 4))
sketch9.addConstraint(Sketcher.Constraint("Equal", 3, 9))
sketch9.addConstraint(Sketcher.Constraint("Equal", 6, 12))
sketch9.addConstraint(Sketcher.Constraint("DistanceX", 5, 1, 5, 2, Q("1 mm")))
sketch9.addConstraint(Sketcher.Constraint("DistanceX", 0, 2, 0, 1, Q("1.5 mm")))
sketch9.addConstraint(Sketcher.Constraint("DistanceX", -1, 1, 0, 2, Q("18.4 mm")))
sketch9.addConstraint(Sketcher.Constraint("DistanceY", -1, 1, 4, 2, Q("10.6 mm")))
sketch9.addConstraint(Sketcher.Constraint("DistanceX", -1, 1, 8, 2, Q("7.7 mm")))
sketch9.addConstraint(Sketcher.Constraint("DistanceY", -1, 1, 12, 2, Q("9.8 mm")))
sketch9.addConstraint(Sketcher.Constraint("DistanceY", 8, 2, 0, 2, Q("0.8 mm")))
sketch9.addConstraint(Sketcher.Constraint("DistanceY", -1, 1, 0, 2, Q("10.35 mm")))
sketch9.addConstraint(Sketcher.Constraint("DistanceX", -1, 1, 4, 2, Q("18.65 mm")))
sketch9.addConstraint(Sketcher.Constraint("DistanceX", -1, 1, 12, 2, Q("7.95 mm")))
pocket4 = body.newObject("PartDesign::Pocket", "Pocket003")
pocket4.Profile = sketch9
pocket4.Length = 2
pocket4.Reversed = True

sketch10 = body.newObject("Sketcher::SketchObject", "Sketch009")
sketch10.AttachmentSupport = (doc.getObject("YZ_Plane"), [""])
sketch10.MapMode = "FlatFace"
sketch10.AttachmentOffset = App.Placement(Vector(0, 0, -8.5), App.Rotation())
sketch10.addGeometry(Part.LineSegment(Vector(19.6, 10.6, 0), Vector(18.6, 10.6, 0)), False)
sketch10.addGeometry(Part.LineSegment(Vector(18.6, 10.6, 0), Vector(18.6, 11.6, 0)), False)
sketch10.addGeometry(Part.LineSegment(Vector(18.6, 11.6, 0), Vector(19.6, 11.6, 0)), False)
sketch10.addGeometry(Part.LineSegment(Vector(19.6, 11.6, 0), Vector(19.6, 10.6, 0)), False)
sketch10.addGeometry(Part.LineSegment(Vector(8.9, 9.8, 0), Vector(8, 9.8, 0)), False)
sketch10.addGeometry(Part.LineSegment(Vector(8, 9.8, 0), Vector(8, 10.8, 0)), False)
sketch10.addGeometry(Part.LineSegment(Vector(8, 10.8, 0), Vector(8.9, 10.8, 0)), False)
sketch10.addGeometry(Part.LineSegment(Vector(8.9, 10.8, 0), Vector(8.9, 9.8, 0)), False)
sketch10.addConstraint(Sketcher.Constraint("Coincident", 0, 2, 1, 1))
sketch10.addConstraint(Sketcher.Constraint("Coincident", 1, 2, 2, 1))
sketch10.addConstraint(Sketcher.Constraint("Coincident", 2, 2, 3, 1))
sketch10.addConstraint(Sketcher.Constraint("Coincident", 3, 2, 0, 1))
sketch10.addConstraint(Sketcher.Constraint("Coincident", 4, 2, 5, 1))
sketch10.addConstraint(Sketcher.Constraint("Coincident", 5, 2, 6, 1))
sketch10.addConstraint(Sketcher.Constraint("Coincident", 6, 2, 7, 1))
sketch10.addConstraint(Sketcher.Constraint("Coincident", 7, 2, 4, 1))
sketch10.addConstraint(Sketcher.Constraint("Horizontal", 0))
sketch10.addConstraint(Sketcher.Constraint("Vertical", 1))
sketch10.addConstraint(Sketcher.Constraint("Horizontal", 2))
sketch10.addConstraint(Sketcher.Constraint("Vertical", 3))
sketch10.addConstraint(Sketcher.Constraint("Horizontal", 4))
sketch10.addConstraint(Sketcher.Constraint("Vertical", 5))
sketch10.addConstraint(Sketcher.Constraint("Horizontal", 6))
sketch10.addConstraint(Sketcher.Constraint("Vertical", 7))
sketch10.addConstraint(Sketcher.Constraint("Equal", 2, 4))
sketch10.addConstraint(Sketcher.Constraint("Equal", 6, 1))
sketch10.addConstraint(Sketcher.Constraint("Equal", 3, 5))
sketch10.addConstraint(Sketcher.Constraint("DistanceX", 0, 2, 0, 1, Q("1 mm")))
sketch10.addConstraint(Sketcher.Constraint("DistanceY", -1, 1, 0, 2, Q("10.6 mm")))
sketch10.addConstraint(Sketcher.Constraint("DistanceY", -1, 1, 4, 2, Q("9.8 mm")))
sketch10.addConstraint(Sketcher.Constraint("DistanceX", 4, 2, 0, 2, Q("10.7 mm")))
sketch10.addConstraint(Sketcher.Constraint("DistanceX", -1, 1, 0, 2, Q("18.65 mm")))
pocket5 = body.newObject("PartDesign::Pocket", "Pocket004")
pocket5.Profile = sketch10
pocket5.Length = 2.5
pocket5.Reversed = True

sketch11 = body.newObject("Sketcher::SketchObject", "Sketch010")
sketch11.AttachmentSupport = (doc.getObject("XY_Plane"), [""])
sketch11.MapMode = "FlatFace"
sketch11.AttachmentOffset = App.Placement(Vector(0, 0, 11.85), App.Rotation())
sketch11.addGeometry(Part.LineSegment(Vector(-6.5, 19.9, 0), Vector(-6.5, 18.4, 0)), False)
sketch11.addGeometry(Part.LineSegment(Vector(-6.5, 18.4, 0), Vector(-8, 18.4, 0)), False)
sketch11.addGeometry(Part.LineSegment(Vector(-8, 18.4, 0), Vector(-8, 19.9, 0)), False)
sketch11.addGeometry(Part.LineSegment(Vector(-8, 19.9, 0), Vector(-6.5, 19.9, 0)), False)
sketch11.addConstraint(Sketcher.Constraint("Coincident", 0, 2, 1, 1))
sketch11.addConstraint(Sketcher.Constraint("Coincident", 1, 2, 2, 1))
sketch11.addConstraint(Sketcher.Constraint("Coincident", 2, 2, 3, 1))
sketch11.addConstraint(Sketcher.Constraint("Coincident", 3, 2, 0, 1))
sketch11.addConstraint(Sketcher.Constraint("Vertical", 0))
sketch11.addConstraint(Sketcher.Constraint("Horizontal", 1))
sketch11.addConstraint(Sketcher.Constraint("Vertical", 2))
sketch11.addConstraint(Sketcher.Constraint("Horizontal", 3))
sketch11.addConstraint(Sketcher.Constraint("Equal", 3, 0))
sketch11.addConstraint(Sketcher.Constraint("DistanceX", 1, 2, 1, 1, Q("1.5 mm")))
sketch11.addConstraint(Sketcher.Constraint("DistanceX", 1, 2, -1, 1, Q("8 mm")))
sketch11.addConstraint(Sketcher.Constraint("DistanceY", -1, 1, 0, 2, Q("18.4 mm")))
pocket6 = body.newObject("PartDesign::Pocket", "Pocket005")
pocket6.Profile = sketch11
pocket6.Length = 0.6
pocket6.Reversed = True

sketch12 = body.newObject("Sketcher::SketchObject", "Sketch011")
sketch12.AttachmentSupport = (doc.getObject("XY_Plane"), [""])
sketch12.MapMode = "FlatFace"
sketch12.AttachmentOffset = App.Placement(Vector(0, 0, 11.05), App.Rotation())
sketch12.addGeometry(Part.LineSegment(Vector(-6.5, 9.2, 0), Vector(-6.5, 7.7, 0)), False)
sketch12.addGeometry(Part.LineSegment(Vector(-6.5, 7.7, 0), Vector(-8, 7.7, 0)), False)
sketch12.addGeometry(Part.LineSegment(Vector(-8, 7.7, 0), Vector(-8, 9.2, 0)), False)
sketch12.addGeometry(Part.LineSegment(Vector(-8, 9.2, 0), Vector(-6.5, 9.2, 0)), False)
sketch12.addConstraint(Sketcher.Constraint("Coincident", 0, 2, 1, 1))
sketch12.addConstraint(Sketcher.Constraint("Coincident", 1, 2, 2, 1))
sketch12.addConstraint(Sketcher.Constraint("Coincident", 2, 2, 3, 1))
sketch12.addConstraint(Sketcher.Constraint("Coincident", 3, 2, 0, 1))
sketch12.addConstraint(Sketcher.Constraint("Vertical", 0))
sketch12.addConstraint(Sketcher.Constraint("Horizontal", 1))
sketch12.addConstraint(Sketcher.Constraint("Vertical", 2))
sketch12.addConstraint(Sketcher.Constraint("Horizontal", 3))
sketch12.addConstraint(Sketcher.Constraint("Equal", 3, 0))
sketch12.addConstraint(Sketcher.Constraint("DistanceX", 1, 2, 1, 1, Q("1.5 mm")))
sketch12.addConstraint(Sketcher.Constraint("DistanceX", 1, 2, -1, 1, Q("8 mm")))
sketch12.addConstraint(Sketcher.Constraint("DistanceY", -1, 1, 0, 2, Q("7.7 mm")))
pocket7 = body.newObject("PartDesign::Pocket", "Pocket006")
pocket7.Profile = sketch12
pocket7.Length = 0.6
pocket7.Reversed = True

sketch13 = body.newObject("Sketcher::SketchObject", "Sketch012")
sketch13.AttachmentSupport = (doc.getObject("XZ_Plane"), [""])
sketch13.MapMode = "FlatFace"
sketch13.AttachmentOffset = App.Placement(Vector(0, 0, -14.5), App.Rotation())
sketch13.addGeometry(Part.LineSegment(Vector(-6, 0, 0), Vector(-8.5, 0, 0)), False)
sketch13.addGeometry(Part.LineSegment(Vector(-8.5, 0, 0), Vector(-8.5, -19.1, 0)), False)
sketch13.addGeometry(Part.LineSegment(Vector(-8.5, -19.1, 0), Vector(-13.5, -19.1, 0)), False)
sketch13.addGeometry(Part.LineSegment(Vector(-13.5, -19.1, 0), Vector(-13.5, -21.1, 0)), False)
sketch13.addGeometry(Part.LineSegment(Vector(-13.5, -21.1, 0), Vector(-6, -21.1, 0)), False)
sketch13.addGeometry(Part.LineSegment(Vector(-6, -21.1, 0), Vector(-6, 0, 0)), False)
sketch13.addConstraint(Sketcher.Constraint("Coincident", 0, 2, 1, 1))
sketch13.addConstraint(Sketcher.Constraint("Coincident", 1, 2, 2, 1))
sketch13.addConstraint(Sketcher.Constraint("Coincident", 2, 2, 3, 1))
sketch13.addConstraint(Sketcher.Constraint("Coincident", 3, 2, 4, 1))
sketch13.addConstraint(Sketcher.Constraint("Coincident", 4, 2, 5, 1))
sketch13.addConstraint(Sketcher.Constraint("Coincident", 5, 2, 0, 1))
sketch13.addConstraint(Sketcher.Constraint("Horizontal", 0))
sketch13.addConstraint(Sketcher.Constraint("Vertical", 1))
sketch13.addConstraint(Sketcher.Constraint("Horizontal", 2))
sketch13.addConstraint(Sketcher.Constraint("Vertical", 3))
sketch13.addConstraint(Sketcher.Constraint("Horizontal", 4))
sketch13.addConstraint(Sketcher.Constraint("Vertical", 5))
sketch13.addConstraint(Sketcher.Constraint("PointOnObject", 0, 2, -1))
sketch13.addConstraint(Sketcher.Constraint("DistanceX", 2, 2, 2, 1, Q("5 mm")))
sketch13.addConstraint(Sketcher.Constraint("DistanceY", 3, 2, 3, 1, Q("2 mm")))
sketch13.addConstraint(Sketcher.Constraint("DistanceX", 0, 2, 0, 1, Q("2.5 mm")))
sketch13.addConstraint(Sketcher.Constraint("DistanceY", 1, 2, 1, 1, Q("19.1 mm")))
sketch13.addConstraint(Sketcher.Constraint("DistanceX", 4, 2, -1, 1, Q("6 mm")))
pad6 = body.newObject("PartDesign::Pad", "Pad005")
pad6.Profile = sketch13
pad6.Length = 8.05

sketch14 = body.newObject("Sketcher::SketchObject", "Sketch013")
sketch14.AttachmentSupport = (doc.getObject("YZ_Plane"), [""])
sketch14.MapMode = "FlatFace"
sketch14.AttachmentOffset = App.Placement(Vector(0, 0, -8.5), App.Rotation())
sketch14.addGeometry(Part.LineSegment(Vector(9.2, 11.05, 0), Vector(7.7, 11.05, 0)), False)
sketch14.addGeometry(Part.LineSegment(Vector(7.7, 11.05, 0), Vector(7.7, 11.25, 0)), False)
sketch14.addGeometry(Part.LineSegment(Vector(7.7, 11.25, 0), Vector(9.2, 11.25, 0)), False)
sketch14.addGeometry(Part.LineSegment(Vector(9.2, 11.25, 0), Vector(9.2, 11.05, 0)), False)
sketch14.addGeometry(Part.LineSegment(Vector(19.9, 11.85, 0), Vector(18.4, 11.85, 0)), False)
sketch14.addGeometry(Part.LineSegment(Vector(18.4, 11.85, 0), Vector(18.4, 12.05, 0)), False)
sketch14.addGeometry(Part.LineSegment(Vector(18.4, 12.05, 0), Vector(19.9, 12.05, 0)), False)
sketch14.addGeometry(Part.LineSegment(Vector(19.9, 12.05, 0), Vector(19.9, 11.85, 0)), False)
sketch14.addConstraint(Sketcher.Constraint("Coincident", 0, 2, 1, 1))
sketch14.addConstraint(Sketcher.Constraint("Coincident", 1, 2, 2, 1))
sketch14.addConstraint(Sketcher.Constraint("Coincident", 2, 2, 3, 1))
sketch14.addConstraint(Sketcher.Constraint("Coincident", 3, 2, 0, 1))
sketch14.addConstraint(Sketcher.Constraint("Coincident", 4, 2, 5, 1))
sketch14.addConstraint(Sketcher.Constraint("Coincident", 5, 2, 6, 1))
sketch14.addConstraint(Sketcher.Constraint("Coincident", 6, 2, 7, 1))
sketch14.addConstraint(Sketcher.Constraint("Coincident", 7, 2, 4, 1))
sketch14.addConstraint(Sketcher.Constraint("Horizontal", 0))
sketch14.addConstraint(Sketcher.Constraint("Vertical", 1))
sketch14.addConstraint(Sketcher.Constraint("Horizontal", 2))
sketch14.addConstraint(Sketcher.Constraint("Vertical", 3))
sketch14.addConstraint(Sketcher.Constraint("Horizontal", 4))
sketch14.addConstraint(Sketcher.Constraint("Vertical", 5))
sketch14.addConstraint(Sketcher.Constraint("Horizontal", 6))
sketch14.addConstraint(Sketcher.Constraint("Vertical", 7))
sketch14.addConstraint(Sketcher.Constraint("Equal", 2, 4))
sketch14.addConstraint(Sketcher.Constraint("Equal", 3, 5))
sketch14.addConstraint(Sketcher.Constraint("DistanceX", 0, 2, 0, 1, Q("1.5 mm")))
sketch14.addConstraint(Sketcher.Constraint("DistanceY", 1, 1, 1, 2, Q("0.2 mm")))
sketch14.addConstraint(Sketcher.Constraint("DistanceY", 3, 2, 5, 2, Q("1 mm")))
sketch14.addConstraint(Sketcher.Constraint("DistanceX", -1, 1, 0, 2, Q("7.7 mm")))
sketch14.addConstraint(Sketcher.Constraint("DistanceX", -1, 1, 4, 2, Q("18.4 mm")))
sketch14.addConstraint(Sketcher.Constraint("DistanceY", -1, 1, 0, 2, Q("11.05 mm")))
pocket8 = body.newObject("PartDesign::Pocket", "Pocket007")
pocket8.Profile = sketch14
pocket8.Length = 0.5
pocket8.Reversed = True

doc.recompute()
